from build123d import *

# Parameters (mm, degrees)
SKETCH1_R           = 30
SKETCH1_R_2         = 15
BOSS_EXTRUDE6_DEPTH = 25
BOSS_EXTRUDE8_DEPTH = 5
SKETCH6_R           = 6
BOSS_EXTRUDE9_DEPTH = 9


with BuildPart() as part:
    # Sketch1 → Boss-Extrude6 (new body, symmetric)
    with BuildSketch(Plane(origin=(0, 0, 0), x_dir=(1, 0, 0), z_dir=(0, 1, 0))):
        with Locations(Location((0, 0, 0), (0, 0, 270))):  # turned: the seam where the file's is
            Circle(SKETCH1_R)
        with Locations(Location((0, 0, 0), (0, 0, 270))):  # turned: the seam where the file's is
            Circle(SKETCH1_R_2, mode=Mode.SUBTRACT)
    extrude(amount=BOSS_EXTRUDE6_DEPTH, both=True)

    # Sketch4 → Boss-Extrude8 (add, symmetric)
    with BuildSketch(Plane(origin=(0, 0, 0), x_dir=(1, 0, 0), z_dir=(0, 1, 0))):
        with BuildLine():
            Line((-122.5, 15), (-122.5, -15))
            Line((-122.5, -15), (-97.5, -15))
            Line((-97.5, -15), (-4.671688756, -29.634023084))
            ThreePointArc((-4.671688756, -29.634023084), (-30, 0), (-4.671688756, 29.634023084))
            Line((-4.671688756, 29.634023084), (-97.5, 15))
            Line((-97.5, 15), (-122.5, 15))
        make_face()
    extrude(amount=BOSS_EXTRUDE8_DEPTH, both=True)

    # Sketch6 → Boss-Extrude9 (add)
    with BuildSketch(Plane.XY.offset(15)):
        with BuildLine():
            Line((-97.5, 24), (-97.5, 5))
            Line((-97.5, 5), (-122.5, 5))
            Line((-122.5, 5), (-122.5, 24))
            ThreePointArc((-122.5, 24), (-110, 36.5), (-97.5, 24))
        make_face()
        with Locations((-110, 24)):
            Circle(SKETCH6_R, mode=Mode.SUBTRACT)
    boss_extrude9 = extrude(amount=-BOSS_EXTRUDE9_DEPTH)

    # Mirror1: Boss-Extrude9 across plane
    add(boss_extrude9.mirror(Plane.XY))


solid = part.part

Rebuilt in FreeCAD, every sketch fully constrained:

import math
import FreeCAD as App
import Part
import Sketcher
from FreeCAD import Vector

doc = App.newDocument("Part")
body = doc.addObject("PartDesign::Body", "Body")

# Sketch on XZ plane
sketch1 = doc.addObject("Sketcher::SketchObject", "Sketch")
body.addObject(sketch1)
sketch1.AttachmentSupport = (doc.XZ_Plane, [""])
sketch1.MapMode = "FlatFace"
sketch1.addGeometry([
    Part.Circle(Vector(0, 0, 0), Vector(0, 0, 1), 30),
    Part.Circle(Vector(0, 0, 0), Vector(0, 0, 1), 15),
], False)
sketch1.addConstraint([
    Sketcher.Constraint("Coincident", 0, 3, -1, 1),
    Sketcher.Constraint("Coincident", 1, 3, -1, 1),
    Sketcher.Constraint("Diameter", 0, 60.0),
    Sketcher.Constraint("Diameter", 1, 30.0),
])
pad1 = doc.addObject("PartDesign::Pad", "Pad")
body.addObject(pad1)
pad1.Profile = sketch1
pad1.Length = 50
pad1.Midplane = True

# Sketch on XZ plane
sketch2 = doc.addObject("Sketcher::SketchObject", "Sketch001")
body.addObject(sketch2)
sketch2.AttachmentSupport = (doc.XZ_Plane, [""])
sketch2.MapMode = "FlatFace"
sketch2.addGeometry([
    Part.LineSegment(Vector(-122.5, -15, 0), Vector(-122.5, 15, 0)),  # 0
    Part.LineSegment(Vector(-122.5, 15, 0), Vector(-97.5, 15, 0)),  # 1
    Part.LineSegment(Vector(-97.5, 15, 0), Vector(-4.671689, 29.634023, 0)),  # 2
    Part.ArcOfCircle(Part.Circle(Vector(0, 0, 0), Vector(0, 0, 1), 30), math.radians(98.958728), math.radians(261.041272)),  # 3
    Part.LineSegment(Vector(-4.671689, -29.634023, 0), Vector(-97.5, -15, 0)),  # 4
    Part.LineSegment(Vector(-97.5, -15, 0), Vector(-122.5, -15, 0)),  # 5
], False)
sketch2.addConstraint([
    Sketcher.Constraint("Coincident", 0, 2, 1, 1),
    Sketcher.Constraint("Coincident", 1, 2, 2, 1),
    Sketcher.Constraint("Tangent", 2, 2, 3, 1),
    Sketcher.Constraint("Tangent", 3, 2, 4, 1),
    Sketcher.Constraint("Coincident", 4, 2, 5, 1),
    Sketcher.Constraint("Coincident", 5, 2, 0, 1),
    Sketcher.Constraint("Vertical", 0),
    Sketcher.Constraint("Horizontal", 1),
    Sketcher.Constraint("Horizontal", 5),
    Sketcher.Constraint("Coincident", 3, 3, -1, 1),
    Sketcher.Constraint("Symmetric", 1, 2, 4, 2, -1),
    Sketcher.Constraint("Radius", 3, 30.0),
    Sketcher.Constraint("DistanceX", 1, 1, 1, 2, 25.0),
    Sketcher.Constraint("DistanceY", 0, 1, 0, 2, 30.0),
    Sketcher.Constraint("DistanceX", 0, 2, -1, 1, 122.5),
])
pad2 = doc.addObject("PartDesign::Pad", "Pad001")
body.addObject(pad2)
pad2.Profile = sketch2
pad2.Length = 10
pad2.Midplane = True

# Sketch on XY plane
sketch3 = doc.addObject("Sketcher::SketchObject", "Sketch002")
body.addObject(sketch3)
sketch3.AttachmentSupport = (doc.XY_Plane, [""])
sketch3.MapMode = "FlatFace"
sketch3.AttachmentOffset = App.Placement(Vector(0, 0, 15), App.Rotation())
sketch3.addGeometry([
    Part.LineSegment(Vector(-97.5, 5, 0), Vector(-97.5, 24, 0)),  # 0
    Part.ArcOfCircle(Part.Circle(Vector(-110, 24, 0), Vector(0, 0, 1), 12.5), math.radians(0), math.radians(180)),  # 1
    Part.LineSegment(Vector(-122.5, 24, 0), Vector(-122.5, 5, 0)),  # 2
    Part.LineSegment(Vector(-122.5, 5, 0), Vector(-97.5, 5, 0)),  # 3
    Part.Circle(Vector(-110, 24, 0), Vector(0, 0, 1), 6),  # 4
], False)
sketch3.addConstraint([
    Sketcher.Constraint("Tangent", 0, 2, 1, 1),
    Sketcher.Constraint("Tangent", 1, 2, 2, 1),
    Sketcher.Constraint("Coincident", 2, 2, 3, 1),
    Sketcher.Constraint("Coincident", 3, 2, 0, 1),
    Sketcher.Constraint("Vertical", 0),
    Sketcher.Constraint("Vertical", 2),
    Sketcher.Constraint("Horizontal", 3),
    Sketcher.Constraint("Coincident", 4, 3, 1, 3),
    Sketcher.Constraint("Diameter", 4, 12.0),
    Sketcher.Constraint("Radius", 1, 12.5),
    Sketcher.Constraint("DistanceY", 0, 1, 0, 2, 19.0),
    Sketcher.Constraint("DistanceX", 1, 3, -1, 1, 110.0),
    Sketcher.Constraint("DistanceY", -1, 1, 1, 3, 24.0),
])
pad3 = doc.addObject("PartDesign::Pad", "Pad002")
body.addObject(pad3)
pad3.Profile = sketch3
pad3.Length = 9
pad3.Reversed = True
doc.recompute()

mirrored = doc.addObject("PartDesign::Mirrored", "Mirrored")
body.addObject(mirrored)
mirrored.Originals = [pad3]
mirrored.MirrorPlane = (doc.XY_Plane, [""])
body.Tip = mirrored

doc.recompute()
